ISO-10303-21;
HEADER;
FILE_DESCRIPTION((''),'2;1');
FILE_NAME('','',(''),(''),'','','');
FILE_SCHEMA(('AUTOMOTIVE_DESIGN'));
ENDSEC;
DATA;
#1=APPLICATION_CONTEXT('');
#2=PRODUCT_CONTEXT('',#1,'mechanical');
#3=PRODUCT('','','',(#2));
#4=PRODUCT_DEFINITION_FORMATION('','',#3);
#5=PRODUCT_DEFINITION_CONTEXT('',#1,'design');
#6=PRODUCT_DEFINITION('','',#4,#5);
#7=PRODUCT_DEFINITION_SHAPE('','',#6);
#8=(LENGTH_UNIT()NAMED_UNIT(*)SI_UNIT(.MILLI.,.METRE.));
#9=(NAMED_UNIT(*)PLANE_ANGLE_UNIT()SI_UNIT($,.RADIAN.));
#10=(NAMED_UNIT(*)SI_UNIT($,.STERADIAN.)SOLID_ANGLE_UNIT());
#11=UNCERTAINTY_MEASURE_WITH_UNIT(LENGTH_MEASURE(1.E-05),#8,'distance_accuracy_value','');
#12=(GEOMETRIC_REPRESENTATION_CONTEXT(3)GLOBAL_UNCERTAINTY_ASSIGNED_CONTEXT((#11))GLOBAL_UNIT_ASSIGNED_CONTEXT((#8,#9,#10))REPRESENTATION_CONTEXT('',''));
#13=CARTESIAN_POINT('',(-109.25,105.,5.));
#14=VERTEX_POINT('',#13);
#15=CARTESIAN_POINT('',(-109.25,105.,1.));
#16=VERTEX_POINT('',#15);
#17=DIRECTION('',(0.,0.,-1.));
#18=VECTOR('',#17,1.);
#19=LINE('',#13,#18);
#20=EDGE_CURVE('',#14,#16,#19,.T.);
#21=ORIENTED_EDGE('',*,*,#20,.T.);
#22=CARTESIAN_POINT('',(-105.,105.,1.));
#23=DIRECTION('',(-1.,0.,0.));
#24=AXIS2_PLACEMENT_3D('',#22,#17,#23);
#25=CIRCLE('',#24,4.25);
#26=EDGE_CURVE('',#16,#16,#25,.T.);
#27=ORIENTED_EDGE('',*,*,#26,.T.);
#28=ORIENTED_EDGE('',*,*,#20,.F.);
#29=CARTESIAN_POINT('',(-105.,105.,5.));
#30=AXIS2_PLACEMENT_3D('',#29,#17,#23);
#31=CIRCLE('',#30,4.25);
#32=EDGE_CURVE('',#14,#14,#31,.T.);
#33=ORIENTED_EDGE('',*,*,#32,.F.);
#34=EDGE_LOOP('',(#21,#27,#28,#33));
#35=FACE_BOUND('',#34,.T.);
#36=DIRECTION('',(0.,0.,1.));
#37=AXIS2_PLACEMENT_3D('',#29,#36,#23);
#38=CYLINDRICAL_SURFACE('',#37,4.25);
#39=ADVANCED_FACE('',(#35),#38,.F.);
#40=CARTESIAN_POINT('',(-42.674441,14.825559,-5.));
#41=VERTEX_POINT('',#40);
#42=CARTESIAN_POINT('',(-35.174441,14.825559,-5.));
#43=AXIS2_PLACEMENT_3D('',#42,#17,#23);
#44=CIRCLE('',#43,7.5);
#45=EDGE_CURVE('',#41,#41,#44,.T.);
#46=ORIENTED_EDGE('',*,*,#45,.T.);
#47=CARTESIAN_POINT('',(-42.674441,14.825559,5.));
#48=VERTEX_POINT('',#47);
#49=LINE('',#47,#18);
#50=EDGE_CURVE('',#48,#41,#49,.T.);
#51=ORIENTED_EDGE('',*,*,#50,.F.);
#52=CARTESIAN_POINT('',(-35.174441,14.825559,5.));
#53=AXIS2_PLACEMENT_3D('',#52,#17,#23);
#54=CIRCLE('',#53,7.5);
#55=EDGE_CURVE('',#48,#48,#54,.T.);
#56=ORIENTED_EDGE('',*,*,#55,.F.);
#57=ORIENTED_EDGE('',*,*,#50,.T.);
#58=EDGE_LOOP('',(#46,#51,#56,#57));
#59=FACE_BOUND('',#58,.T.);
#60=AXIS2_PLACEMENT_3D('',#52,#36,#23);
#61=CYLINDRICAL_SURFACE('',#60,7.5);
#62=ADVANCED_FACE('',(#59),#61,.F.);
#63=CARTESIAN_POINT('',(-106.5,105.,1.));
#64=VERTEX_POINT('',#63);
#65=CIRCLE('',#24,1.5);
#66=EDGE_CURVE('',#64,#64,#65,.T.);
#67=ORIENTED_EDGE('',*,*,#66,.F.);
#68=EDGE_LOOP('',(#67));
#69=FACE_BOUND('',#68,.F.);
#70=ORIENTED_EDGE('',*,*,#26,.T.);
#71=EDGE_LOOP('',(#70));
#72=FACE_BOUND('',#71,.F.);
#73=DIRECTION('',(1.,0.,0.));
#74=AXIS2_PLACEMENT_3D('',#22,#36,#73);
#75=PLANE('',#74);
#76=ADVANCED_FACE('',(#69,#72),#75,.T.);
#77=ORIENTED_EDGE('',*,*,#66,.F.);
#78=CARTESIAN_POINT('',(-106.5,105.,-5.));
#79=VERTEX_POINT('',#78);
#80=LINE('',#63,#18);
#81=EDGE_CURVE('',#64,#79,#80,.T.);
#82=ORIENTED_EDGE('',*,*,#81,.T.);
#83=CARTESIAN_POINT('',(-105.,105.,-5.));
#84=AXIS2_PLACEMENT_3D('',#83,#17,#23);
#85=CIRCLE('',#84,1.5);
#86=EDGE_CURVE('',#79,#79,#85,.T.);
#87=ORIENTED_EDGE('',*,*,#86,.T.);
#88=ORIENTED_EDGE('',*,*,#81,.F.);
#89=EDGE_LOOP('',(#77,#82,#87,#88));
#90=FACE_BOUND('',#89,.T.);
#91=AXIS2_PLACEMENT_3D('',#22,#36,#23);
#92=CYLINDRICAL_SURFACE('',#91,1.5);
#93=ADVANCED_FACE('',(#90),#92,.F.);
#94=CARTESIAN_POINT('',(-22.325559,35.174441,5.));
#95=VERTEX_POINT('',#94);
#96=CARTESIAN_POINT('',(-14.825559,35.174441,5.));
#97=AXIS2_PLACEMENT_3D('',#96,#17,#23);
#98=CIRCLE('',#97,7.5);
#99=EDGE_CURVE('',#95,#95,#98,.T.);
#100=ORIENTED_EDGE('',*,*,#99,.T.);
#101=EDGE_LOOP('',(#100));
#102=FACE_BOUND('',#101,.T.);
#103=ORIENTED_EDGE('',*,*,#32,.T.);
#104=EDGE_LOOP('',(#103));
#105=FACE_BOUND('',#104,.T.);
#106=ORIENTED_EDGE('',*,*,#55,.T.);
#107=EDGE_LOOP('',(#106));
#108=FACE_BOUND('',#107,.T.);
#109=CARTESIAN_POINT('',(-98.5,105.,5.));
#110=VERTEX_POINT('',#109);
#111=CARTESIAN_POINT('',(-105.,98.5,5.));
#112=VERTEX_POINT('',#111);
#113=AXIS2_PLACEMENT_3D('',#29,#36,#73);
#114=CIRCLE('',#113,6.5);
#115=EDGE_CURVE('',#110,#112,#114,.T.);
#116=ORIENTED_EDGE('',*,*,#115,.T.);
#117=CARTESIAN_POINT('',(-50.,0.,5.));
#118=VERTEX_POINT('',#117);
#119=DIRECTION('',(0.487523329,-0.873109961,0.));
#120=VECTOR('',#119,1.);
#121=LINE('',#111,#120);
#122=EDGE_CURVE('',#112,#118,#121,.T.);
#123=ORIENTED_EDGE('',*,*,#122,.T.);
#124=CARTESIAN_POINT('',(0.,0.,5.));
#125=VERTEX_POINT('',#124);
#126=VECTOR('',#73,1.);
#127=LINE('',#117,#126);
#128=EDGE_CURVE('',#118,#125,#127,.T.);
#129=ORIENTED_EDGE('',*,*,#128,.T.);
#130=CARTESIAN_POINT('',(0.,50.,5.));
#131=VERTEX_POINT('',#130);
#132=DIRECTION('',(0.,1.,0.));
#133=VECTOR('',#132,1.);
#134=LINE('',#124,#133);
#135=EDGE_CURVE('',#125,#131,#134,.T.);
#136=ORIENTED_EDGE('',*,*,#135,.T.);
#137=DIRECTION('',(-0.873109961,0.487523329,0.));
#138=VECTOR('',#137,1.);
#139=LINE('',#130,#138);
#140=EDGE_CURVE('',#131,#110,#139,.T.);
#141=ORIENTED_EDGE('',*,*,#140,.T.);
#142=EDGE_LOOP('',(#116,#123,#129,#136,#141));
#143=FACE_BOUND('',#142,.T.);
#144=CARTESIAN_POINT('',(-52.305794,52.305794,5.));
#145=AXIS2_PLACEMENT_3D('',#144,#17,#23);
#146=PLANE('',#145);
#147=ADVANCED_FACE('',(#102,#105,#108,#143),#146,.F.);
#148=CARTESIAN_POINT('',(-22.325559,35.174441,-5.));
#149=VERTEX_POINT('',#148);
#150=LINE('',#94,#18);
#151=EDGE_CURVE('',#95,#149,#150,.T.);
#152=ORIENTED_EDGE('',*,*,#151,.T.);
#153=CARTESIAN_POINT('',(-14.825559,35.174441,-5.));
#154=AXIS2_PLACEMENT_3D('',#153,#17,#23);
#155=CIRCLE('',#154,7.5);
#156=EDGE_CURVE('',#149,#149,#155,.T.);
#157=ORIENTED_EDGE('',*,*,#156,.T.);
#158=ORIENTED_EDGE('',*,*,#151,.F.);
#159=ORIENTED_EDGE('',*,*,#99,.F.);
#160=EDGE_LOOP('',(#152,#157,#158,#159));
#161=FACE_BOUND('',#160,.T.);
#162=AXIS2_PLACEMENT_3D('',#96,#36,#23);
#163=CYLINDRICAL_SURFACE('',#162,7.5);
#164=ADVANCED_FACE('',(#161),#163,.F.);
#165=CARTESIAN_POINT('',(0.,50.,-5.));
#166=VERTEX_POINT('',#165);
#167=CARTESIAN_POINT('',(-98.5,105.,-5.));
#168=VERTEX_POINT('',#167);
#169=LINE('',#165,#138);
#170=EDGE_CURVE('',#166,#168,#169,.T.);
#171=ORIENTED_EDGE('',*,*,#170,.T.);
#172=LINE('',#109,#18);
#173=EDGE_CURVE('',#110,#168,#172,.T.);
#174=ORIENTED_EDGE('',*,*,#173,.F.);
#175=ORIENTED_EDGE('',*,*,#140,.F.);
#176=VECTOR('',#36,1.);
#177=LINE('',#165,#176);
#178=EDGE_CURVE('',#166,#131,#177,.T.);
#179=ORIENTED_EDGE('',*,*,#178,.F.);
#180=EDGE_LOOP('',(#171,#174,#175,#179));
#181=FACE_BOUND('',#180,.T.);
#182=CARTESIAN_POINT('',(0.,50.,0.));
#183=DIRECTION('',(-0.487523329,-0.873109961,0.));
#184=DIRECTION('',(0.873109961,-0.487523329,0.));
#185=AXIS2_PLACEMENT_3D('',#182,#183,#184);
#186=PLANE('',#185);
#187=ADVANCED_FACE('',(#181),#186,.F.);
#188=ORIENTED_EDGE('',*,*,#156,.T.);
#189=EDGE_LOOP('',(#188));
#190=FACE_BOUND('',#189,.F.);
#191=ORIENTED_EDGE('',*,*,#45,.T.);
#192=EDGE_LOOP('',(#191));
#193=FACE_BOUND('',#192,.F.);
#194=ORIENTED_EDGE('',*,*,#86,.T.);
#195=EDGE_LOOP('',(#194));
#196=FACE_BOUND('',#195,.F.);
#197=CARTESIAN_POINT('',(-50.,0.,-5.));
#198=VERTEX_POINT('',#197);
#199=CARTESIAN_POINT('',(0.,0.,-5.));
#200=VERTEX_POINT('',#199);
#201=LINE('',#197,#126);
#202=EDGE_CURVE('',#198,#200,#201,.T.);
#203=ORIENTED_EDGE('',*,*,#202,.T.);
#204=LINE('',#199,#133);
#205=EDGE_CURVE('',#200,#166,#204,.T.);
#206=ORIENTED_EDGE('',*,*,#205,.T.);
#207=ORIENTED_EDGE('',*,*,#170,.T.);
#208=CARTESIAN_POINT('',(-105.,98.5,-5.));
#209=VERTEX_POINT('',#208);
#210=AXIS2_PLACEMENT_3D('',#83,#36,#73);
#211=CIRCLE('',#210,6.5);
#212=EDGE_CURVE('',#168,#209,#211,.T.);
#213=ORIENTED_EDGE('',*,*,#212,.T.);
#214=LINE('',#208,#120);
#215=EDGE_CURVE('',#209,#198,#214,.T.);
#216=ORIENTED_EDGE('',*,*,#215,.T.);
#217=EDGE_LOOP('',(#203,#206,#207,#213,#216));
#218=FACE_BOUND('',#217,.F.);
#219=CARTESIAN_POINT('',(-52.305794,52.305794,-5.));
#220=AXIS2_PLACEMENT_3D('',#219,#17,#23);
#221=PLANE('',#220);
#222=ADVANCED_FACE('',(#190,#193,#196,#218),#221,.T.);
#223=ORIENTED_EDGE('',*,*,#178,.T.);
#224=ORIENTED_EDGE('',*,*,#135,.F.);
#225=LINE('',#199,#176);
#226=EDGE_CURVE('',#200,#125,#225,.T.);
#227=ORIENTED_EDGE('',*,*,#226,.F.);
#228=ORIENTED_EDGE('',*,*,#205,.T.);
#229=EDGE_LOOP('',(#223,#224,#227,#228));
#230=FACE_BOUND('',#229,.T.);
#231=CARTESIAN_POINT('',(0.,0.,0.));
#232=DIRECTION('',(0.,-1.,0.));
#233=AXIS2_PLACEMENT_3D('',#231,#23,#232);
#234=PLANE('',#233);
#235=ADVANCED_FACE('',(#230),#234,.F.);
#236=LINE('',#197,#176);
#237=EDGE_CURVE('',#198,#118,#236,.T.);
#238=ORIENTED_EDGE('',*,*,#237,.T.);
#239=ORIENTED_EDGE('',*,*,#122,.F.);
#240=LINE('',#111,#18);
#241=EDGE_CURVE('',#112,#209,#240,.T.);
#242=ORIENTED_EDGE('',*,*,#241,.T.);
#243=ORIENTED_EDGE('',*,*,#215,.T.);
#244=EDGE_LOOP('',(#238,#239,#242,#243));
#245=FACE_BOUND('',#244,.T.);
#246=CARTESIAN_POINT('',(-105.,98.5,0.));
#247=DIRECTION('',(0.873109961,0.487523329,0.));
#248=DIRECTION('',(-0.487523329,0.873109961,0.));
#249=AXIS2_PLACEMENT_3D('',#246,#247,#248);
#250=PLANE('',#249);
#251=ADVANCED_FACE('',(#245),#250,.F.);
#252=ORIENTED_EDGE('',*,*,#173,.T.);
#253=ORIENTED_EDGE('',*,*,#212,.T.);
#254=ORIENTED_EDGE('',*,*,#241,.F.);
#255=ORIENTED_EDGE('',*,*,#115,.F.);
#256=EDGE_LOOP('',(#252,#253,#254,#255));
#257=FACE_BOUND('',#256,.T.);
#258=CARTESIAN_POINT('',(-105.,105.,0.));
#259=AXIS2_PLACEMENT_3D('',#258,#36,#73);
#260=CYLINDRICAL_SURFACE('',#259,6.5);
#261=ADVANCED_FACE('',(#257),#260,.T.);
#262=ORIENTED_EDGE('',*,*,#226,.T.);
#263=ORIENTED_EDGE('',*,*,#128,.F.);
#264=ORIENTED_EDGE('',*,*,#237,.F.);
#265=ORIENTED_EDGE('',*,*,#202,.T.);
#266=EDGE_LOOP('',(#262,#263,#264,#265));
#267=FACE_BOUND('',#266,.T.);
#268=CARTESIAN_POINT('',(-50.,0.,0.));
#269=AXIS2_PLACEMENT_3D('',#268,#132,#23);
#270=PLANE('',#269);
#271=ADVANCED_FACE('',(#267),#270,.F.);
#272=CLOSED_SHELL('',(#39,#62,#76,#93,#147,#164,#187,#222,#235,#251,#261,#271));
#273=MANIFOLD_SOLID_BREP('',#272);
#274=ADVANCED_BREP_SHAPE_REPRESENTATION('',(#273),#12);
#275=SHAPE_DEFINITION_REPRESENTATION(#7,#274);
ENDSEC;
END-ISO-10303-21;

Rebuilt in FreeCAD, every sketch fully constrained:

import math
import FreeCAD as App
import Part
import Sketcher

V = App.Vector
Q = App.Units.Quantity

doc = App.newDocument("Part")
body = doc.addObject("PartDesign::Body", "Body")

sketch1 = body.newObject("Sketcher::SketchObject", "Sketch")
sketch1.AttachmentSupport = (doc.getObject("XY_Plane"), [""])
sketch1.MapMode = "FlatFace"
sketch1.addGeometry([
    Part.LineSegment(V(98.5, 105, 0), V(0, 50, 0)),
    Part.LineSegment(V(0, 50, 0), V(0, 0, 0)),
    Part.LineSegment(V(0, 0, 0), V(50, 0, 0)),
    Part.LineSegment(V(50, 0, 0), V(105, 98.5, 0)),
    Part.ArcOfCircle(Part.Circle(V(105, 105, 0), V(0, 0, 1), 6.5), math.radians(-90), math.radians(180)),
], False)
sketch1.addConstraint([
    Sketcher.Constraint("Coincident", 0, 2, 1, 1),
    Sketcher.Constraint("Coincident", 1, 2, 2, 1),
    Sketcher.Constraint("Coincident", 2, 2, 3, 1),
    Sketcher.Constraint("Coincident", 3, 2, 4, 1),
    Sketcher.Constraint("Coincident", 4, 2, 0, 1),
    Sketcher.Constraint("Vertical", 1),
    Sketcher.Constraint("Horizontal", 2),
    Sketcher.Constraint("Coincident", 1, 2, -1, 1),
    Sketcher.Constraint("Vertical", 4, 3, 3, 2),
    Sketcher.Constraint("Equal", 2, 1),
    Sketcher.Constraint("Equal", 0, 3),
    Sketcher.Constraint("Radius", 4, Q("6.5 mm")),
    Sketcher.Constraint("DistanceX", 2, 1, 2, 2, Q("50 mm")),
    Sketcher.Constraint("DistanceX", -1, 1, 4, 3, Q("105 mm")),
    Sketcher.Constraint("DistanceY", -1, 1, 4, 3, Q("105 mm")),
])
pad1 = body.newObject("PartDesign::Pad", "Pad")
pad1.Profile = sketch1
pad1.Length = 10
pad1.Midplane = True

sketch2 = body.newObject("Sketcher::SketchObject", "Sketch001")
sketch2.AttachmentSupport = (doc.getObject("XY_Plane"), [""])
sketch2.MapMode = "FlatFace"
sketch2.AttachmentOffset = App.Placement(V(0, 0, 5), App.Rotation())
sketch2.addGeometry(Part.Circle(V(105, 105, 0), V(0, 0, 1), 4.25), False)
sketch2.addConstraint([
    Sketcher.Constraint("Diameter", 0, Q("8.5 mm")),
    Sketcher.Constraint("DistanceX", -1, 1, 0, 3, Q("105 mm")),
    Sketcher.Constraint("DistanceY", -1, 1, 0, 3, Q("105 mm")),
])
pocket1 = body.newObject("PartDesign::Pocket", "Pocket")
pocket1.Profile = sketch2
pocket1.Length = 4

sketch3 = body.newObject("Sketcher::SketchObject", "Sketch002")
sketch3.AttachmentSupport = (doc.getObject("XY_Plane"), [""])
sketch3.MapMode = "FlatFace"
sketch3.AttachmentOffset = App.Placement(V(0, 0, 1), App.Rotation())
sketch3.addGeometry(Part.Circle(V(105, 105, 0), V(0, 0, 1), 1.5), False)
sketch3.addConstraint([
    Sketcher.Constraint("Diameter", 0, Q("3 mm")),
    Sketcher.Constraint("DistanceX", -1, 1, 0, 3, Q("105 mm")),
    Sketcher.Constraint("DistanceY", -1, 1, 0, 3, Q("105 mm")),
])
pocket2 = body.newObject("PartDesign::Pocket", "Pocket001")
pocket2.Profile = sketch3
pocket2.Type = "ThroughAll"

sketch4 = body.newObject("Sketcher::SketchObject", "Sketch003")
sketch4.AttachmentSupport = (doc.getObject("XY_Plane"), [""])
sketch4.MapMode = "FlatFace"
sketch4.AttachmentOffset = App.Placement(V(0, 0, 5), App.Rotation())
sketch4.addGeometry([
    Part.Circle(V(14.825559, 35.174441, 0), V(0, 0, 1), 7.5),
    Part.Circle(V(35.174441, 14.825559, 0), V(0, 0, 1), 7.5),
], False)
sketch4.addConstraint([
    Sketcher.Constraint("Equal", 0, 1),
    Sketcher.Constraint("Diameter", 0, Q("15 mm")),
    Sketcher.Constraint("DistanceX", -1, 1, 0, 3, Q("14.825559 mm")),
    Sketcher.Constraint("DistanceY", -1, 1, 0, 3, Q("35.174441 mm")),
    Sketcher.Constraint("DistanceX", -1, 1, 1, 3, Q("35.174441 mm")),
    Sketcher.Constraint("DistanceY", -1, 1, 1, 3, Q("14.825559 mm")),
])
pocket3 = body.newObject("PartDesign::Pocket", "Pocket002")
pocket3.Profile = sketch4
pocket3.Type = "ThroughAll"
body2 = doc.addObject("PartDesign::Body", "Body001")
doc.recompute()

mirroring = doc.addObject("Part::Mirroring", "Mirroring")
mirroring.Source = body
mirroring.Base = V(0, 0, 5)
mirroring.Normal = V(0, 1, 0)
body2.BaseFeature = mirroring
doc.recompute()
body3 = doc.addObject("PartDesign::Body", "Body002")
doc.recompute()

mirroring2 = doc.addObject("Part::Mirroring", "Mirroring001")
mirroring2.Source = body2
mirroring2.Base = V(0, 0, 5)
mirroring2.Normal = V(1, 0, 0)
body3.BaseFeature = mirroring2
doc.recompute()
body4 = doc.addObject("PartDesign::Body", "Body003")
doc.recompute()

mirroring3 = doc.addObject("Part::Mirroring", "Mirroring002")
mirroring3.Source = body
mirroring3.Base = V(0, 0, 5)
mirroring3.Normal = V(1, 0, 0)
body4.BaseFeature = mirroring3
doc.recompute()
body.Visibility = False
body2.Visibility = False
body3.Visibility = False
mirroring.Visibility = False
mirroring2.Visibility = False
mirroring3.Visibility = False

doc.recompute()
